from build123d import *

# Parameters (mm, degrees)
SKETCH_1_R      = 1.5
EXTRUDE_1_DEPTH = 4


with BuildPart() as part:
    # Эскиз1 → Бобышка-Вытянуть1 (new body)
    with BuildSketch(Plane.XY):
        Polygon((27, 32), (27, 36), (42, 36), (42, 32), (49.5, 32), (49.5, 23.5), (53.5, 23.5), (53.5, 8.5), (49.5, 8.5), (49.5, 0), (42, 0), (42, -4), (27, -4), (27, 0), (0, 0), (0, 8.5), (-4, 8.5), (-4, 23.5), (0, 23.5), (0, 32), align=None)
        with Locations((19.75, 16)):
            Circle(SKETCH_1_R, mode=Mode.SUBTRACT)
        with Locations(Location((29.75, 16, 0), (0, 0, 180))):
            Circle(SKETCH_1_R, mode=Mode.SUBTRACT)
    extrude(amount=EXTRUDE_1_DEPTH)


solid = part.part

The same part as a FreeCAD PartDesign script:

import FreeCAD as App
import Part
import Sketcher
from FreeCAD import Vector

doc = App.newDocument("Part")
body = doc.addObject("PartDesign::Body", "Body")

# Sketch on XY plane
sketch1 = body.newObject("Sketcher::SketchObject", "Sketch")
sketch1.AttachmentSupport = (doc.getObject("XY_Plane"), [""])
sketch1.MapMode = "FlatFace"
sketch1.addGeometry(Part.LineSegment(Vector(27, 36, 0), Vector(27, 32, 0)), False)
sketch1.addGeometry(Part.LineSegment(Vector(27, 32, 0), Vector(0, 32, 0)), False)
sketch1.addGeometry(Part.LineSegment(Vector(0, 32, 0), Vector(0, 23.5, 0)), False)
sketch1.addGeometry(Part.LineSegment(Vector(0, 23.5, 0), Vector(-4, 23.5, 0)), False)
sketch1.addGeometry(Part.LineSegment(Vector(-4, 23.5, 0), Vector(-4, 8.5, 0)), False)
sketch1.addGeometry(Part.LineSegment(Vector(-4, 8.5, 0), Vector(0, 8.5, 0)), False)
sketch1.addGeometry(Part.LineSegment(Vector(0, 8.5, 0), Vector(0, 0, 0)), False)
sketch1.addGeometry(Part.LineSegment(Vector(0, 0, 0), Vector(27, 0, 0)), False)
sketch1.addGeometry(Part.LineSegment(Vector(27, 0, 0), Vector(27, -4, 0)), False)
sketch1.addGeometry(Part.LineSegment(Vector(27, -4, 0), Vector(42, -4, 0)), False)
sketch1.addGeometry(Part.LineSegment(Vector(42, -4, 0), Vector(42, 0, 0)), False)
sketch1.addGeometry(Part.LineSegment(Vector(42, 0, 0), Vector(49.5, 0, 0)), False)
sketch1.addGeometry(Part.LineSegment(Vector(49.5, 0, 0), Vector(49.5, 8.5, 0)), False)
sketch1.addGeometry(Part.LineSegment(Vector(49.5, 8.5, 0), Vector(53.5, 8.5, 0)), False)
sketch1.addGeometry(Part.LineSegment(Vector(53.5, 8.5, 0), Vector(53.5, 23.5, 0)), False)
sketch1.addGeometry(Part.LineSegment(Vector(53.5, 23.5, 0), Vector(49.5, 23.5, 0)), False)
sketch1.addGeometry(Part.LineSegment(Vector(49.5, 23.5, 0), Vector(49.5, 32, 0)), False)
sketch1.addGeometry(Part.LineSegment(Vector(49.5, 32, 0), Vector(42, 32, 0)), False)
sketch1.addGeometry(Part.LineSegment(Vector(42, 32, 0), Vector(42, 36, 0)), False)
sketch1.addGeometry(Part.LineSegment(Vector(42, 36, 0), Vector(27, 36, 0)), False)
sketch1.addGeometry(Part.Circle(Vector(29.8, 16, 0), Vector(0, 0, 1), 1.5), False)
sketch1.addGeometry(Part.Circle(Vector(19.8, 16, 0), Vector(0, 0, 1), 1.5), False)
sketch1.addConstraint(Sketcher.Constraint("Coincident", 0, 2, 1, 1))
sketch1.addConstraint(Sketcher.Constraint("Coincident", 1, 2, 2, 1))
sketch1.addConstraint(Sketcher.Constraint("Coincident", 2, 2, 3, 1))
sketch1.addConstraint(Sketcher.Constraint("Coincident", 3, 2, 4, 1))
sketch1.addConstraint(Sketcher.Constraint("Coincident", 4, 2, 5, 1))
sketch1.addConstraint(Sketcher.Constraint("Coincident", 5, 2, 6, 1))
sketch1.addConstraint(Sketcher.Constraint("Coincident", 6, 2, 7, 1))
sketch1.addConstraint(Sketcher.Constraint("Coincident", 7, 2, 8, 1))
sketch1.addConstraint(Sketcher.Constraint("Coincident", 8, 2, 9, 1))
sketch1.addConstraint(Sketcher.Constraint("Coincident", 9, 2, 10, 1))
sketch1.addConstraint(Sketcher.Constraint("Coincident", 10, 2, 11, 1))
sketch1.addConstraint(Sketcher.Constraint("Coincident", 11, 2, 12, 1))
sketch1.addConstraint(Sketcher.Constraint("Coincident", 12, 2, 13, 1))
sketch1.addConstraint(Sketcher.Constraint("Coincident", 13, 2, 14, 1))
sketch1.addConstraint(Sketcher.Constraint("Coincident", 14, 2, 15, 1))
sketch1.addConstraint(Sketcher.Constraint("Coincident", 15, 2, 16, 1))
sketch1.addConstraint(Sketcher.Constraint("Coincident", 16, 2, 17, 1))
sketch1.addConstraint(Sketcher.Constraint("Coincident", 17, 2, 18, 1))
sketch1.addConstraint(Sketcher.Constraint("Coincident", 18, 2, 19, 1))
sketch1.addConstraint(Sketcher.Constraint("Coincident", 19, 2, 0, 1))
sketch1.addConstraint(Sketcher.Constraint("Vertical", 0))
sketch1.addConstraint(Sketcher.Constraint("Horizontal", 1))
sketch1.addConstraint(Sketcher.Constraint("Vertical", 2))
sketch1.addConstraint(Sketcher.Constraint("Horizontal", 3))
sketch1.addConstraint(Sketcher.Constraint("Vertical", 4))
sketch1.addConstraint(Sketcher.Constraint("Horizontal", 5))
sketch1.addConstraint(Sketcher.Constraint("Vertical", 6))
sketch1.addConstraint(Sketcher.Constraint("Horizontal", 7))
sketch1.addConstraint(Sketcher.Constraint("Vertical", 8))
sketch1.addConstraint(Sketcher.Constraint("Horizontal", 9))
sketch1.addConstraint(Sketcher.Constraint("Vertical", 10))
sketch1.addConstraint(Sketcher.Constraint("Horizontal", 11))
sketch1.addConstraint(Sketcher.Constraint("Vertical", 12))
sketch1.addConstraint(Sketcher.Constraint("Horizontal", 13))
sketch1.addConstraint(Sketcher.Constraint("Vertical", 14))
sketch1.addConstraint(Sketcher.Constraint("Horizontal", 15))
sketch1.addConstraint(Sketcher.Constraint("Vertical", 16))
sketch1.addConstraint(Sketcher.Constraint("Horizontal", 17))
sketch1.addConstraint(Sketcher.Constraint("Vertical", 18))
sketch1.addConstraint(Sketcher.Constraint("Horizontal", 19))
sketch1.addConstraint(Sketcher.Constraint("Coincident", 6, 2, -1, 1))
sketch1.addConstraint(Sketcher.Constraint("Equal", 20, 21))
sketch1.addConstraint(Sketcher.Constraint("PointOnObject", 1, 2, -2))
sketch1.addConstraint(Sketcher.Constraint("PointOnObject", 10, 2, -1))
sketch1.addConstraint(Sketcher.Constraint("Horizontal", 20, 3, 21, 3))
sketch1.addConstraint(Sketcher.Constraint("Horizontal", 5, 2, 12, 2))
sketch1.addConstraint(Sketcher.Constraint("Horizontal", 3, 2, 14, 2))
sketch1.addConstraint(Sketcher.Constraint("Horizontal", 1, 2, 16, 2))
sketch1.addConstraint(Sketcher.Constraint("Vertical", 0, 2, 7, 2))
sketch1.addConstraint(Sketcher.Constraint("Vertical", 12, 2, 15, 2))
sketch1.addConstraint(Sketcher.Constraint("Vertical", 10, 2, 17, 2))
sketch1.addConstraint(Sketcher.Constraint("Equal", 5, 13))
sketch1.addConstraint(Sketcher.Constraint("Equal", 15, 0))
sketch1.addConstraint(Sketcher.Constraint("Equal", 19, 4))
sketch1.addConstraint(Sketcher.Constraint("Equal", 2, 6))
sketch1.addConstraint(Sketcher.Constraint("Equal", 0, 8))
sketch1.addConstraint(Sketcher.Constraint("Diameter", 20, 3.0))
sketch1.addConstraint(Sketcher.Constraint("DistanceX", 1, 2, 1, 1, 27.0))
sketch1.addConstraint(Sketcher.Constraint("DistanceX", 3, 2, 3, 1, 4.0))
sketch1.addConstraint(Sketcher.Constraint("DistanceX", 9, 1, 9, 2, 15.0))
sketch1.addConstraint(Sketcher.Constraint("DistanceX", 11, 1, 11, 2, 7.5))
sketch1.addConstraint(Sketcher.Constraint("DistanceY", 2, 2, 2, 1, 8.5))
sketch1.addConstraint(Sketcher.Constraint("DistanceY", -1, 1, 20, 3, 16.0))
sketch1.addConstraint(Sketcher.Constraint("DistanceX", 21, 3, 20, 3, 10.0))
sketch1.addConstraint(Sketcher.Constraint("DistanceX", -1, 1, 20, 3, 29.75))
pad1 = body.newObject("PartDesign::Pad", "Pad")
pad1.Profile = sketch1
pad1.Length = 4

doc.recompute()
